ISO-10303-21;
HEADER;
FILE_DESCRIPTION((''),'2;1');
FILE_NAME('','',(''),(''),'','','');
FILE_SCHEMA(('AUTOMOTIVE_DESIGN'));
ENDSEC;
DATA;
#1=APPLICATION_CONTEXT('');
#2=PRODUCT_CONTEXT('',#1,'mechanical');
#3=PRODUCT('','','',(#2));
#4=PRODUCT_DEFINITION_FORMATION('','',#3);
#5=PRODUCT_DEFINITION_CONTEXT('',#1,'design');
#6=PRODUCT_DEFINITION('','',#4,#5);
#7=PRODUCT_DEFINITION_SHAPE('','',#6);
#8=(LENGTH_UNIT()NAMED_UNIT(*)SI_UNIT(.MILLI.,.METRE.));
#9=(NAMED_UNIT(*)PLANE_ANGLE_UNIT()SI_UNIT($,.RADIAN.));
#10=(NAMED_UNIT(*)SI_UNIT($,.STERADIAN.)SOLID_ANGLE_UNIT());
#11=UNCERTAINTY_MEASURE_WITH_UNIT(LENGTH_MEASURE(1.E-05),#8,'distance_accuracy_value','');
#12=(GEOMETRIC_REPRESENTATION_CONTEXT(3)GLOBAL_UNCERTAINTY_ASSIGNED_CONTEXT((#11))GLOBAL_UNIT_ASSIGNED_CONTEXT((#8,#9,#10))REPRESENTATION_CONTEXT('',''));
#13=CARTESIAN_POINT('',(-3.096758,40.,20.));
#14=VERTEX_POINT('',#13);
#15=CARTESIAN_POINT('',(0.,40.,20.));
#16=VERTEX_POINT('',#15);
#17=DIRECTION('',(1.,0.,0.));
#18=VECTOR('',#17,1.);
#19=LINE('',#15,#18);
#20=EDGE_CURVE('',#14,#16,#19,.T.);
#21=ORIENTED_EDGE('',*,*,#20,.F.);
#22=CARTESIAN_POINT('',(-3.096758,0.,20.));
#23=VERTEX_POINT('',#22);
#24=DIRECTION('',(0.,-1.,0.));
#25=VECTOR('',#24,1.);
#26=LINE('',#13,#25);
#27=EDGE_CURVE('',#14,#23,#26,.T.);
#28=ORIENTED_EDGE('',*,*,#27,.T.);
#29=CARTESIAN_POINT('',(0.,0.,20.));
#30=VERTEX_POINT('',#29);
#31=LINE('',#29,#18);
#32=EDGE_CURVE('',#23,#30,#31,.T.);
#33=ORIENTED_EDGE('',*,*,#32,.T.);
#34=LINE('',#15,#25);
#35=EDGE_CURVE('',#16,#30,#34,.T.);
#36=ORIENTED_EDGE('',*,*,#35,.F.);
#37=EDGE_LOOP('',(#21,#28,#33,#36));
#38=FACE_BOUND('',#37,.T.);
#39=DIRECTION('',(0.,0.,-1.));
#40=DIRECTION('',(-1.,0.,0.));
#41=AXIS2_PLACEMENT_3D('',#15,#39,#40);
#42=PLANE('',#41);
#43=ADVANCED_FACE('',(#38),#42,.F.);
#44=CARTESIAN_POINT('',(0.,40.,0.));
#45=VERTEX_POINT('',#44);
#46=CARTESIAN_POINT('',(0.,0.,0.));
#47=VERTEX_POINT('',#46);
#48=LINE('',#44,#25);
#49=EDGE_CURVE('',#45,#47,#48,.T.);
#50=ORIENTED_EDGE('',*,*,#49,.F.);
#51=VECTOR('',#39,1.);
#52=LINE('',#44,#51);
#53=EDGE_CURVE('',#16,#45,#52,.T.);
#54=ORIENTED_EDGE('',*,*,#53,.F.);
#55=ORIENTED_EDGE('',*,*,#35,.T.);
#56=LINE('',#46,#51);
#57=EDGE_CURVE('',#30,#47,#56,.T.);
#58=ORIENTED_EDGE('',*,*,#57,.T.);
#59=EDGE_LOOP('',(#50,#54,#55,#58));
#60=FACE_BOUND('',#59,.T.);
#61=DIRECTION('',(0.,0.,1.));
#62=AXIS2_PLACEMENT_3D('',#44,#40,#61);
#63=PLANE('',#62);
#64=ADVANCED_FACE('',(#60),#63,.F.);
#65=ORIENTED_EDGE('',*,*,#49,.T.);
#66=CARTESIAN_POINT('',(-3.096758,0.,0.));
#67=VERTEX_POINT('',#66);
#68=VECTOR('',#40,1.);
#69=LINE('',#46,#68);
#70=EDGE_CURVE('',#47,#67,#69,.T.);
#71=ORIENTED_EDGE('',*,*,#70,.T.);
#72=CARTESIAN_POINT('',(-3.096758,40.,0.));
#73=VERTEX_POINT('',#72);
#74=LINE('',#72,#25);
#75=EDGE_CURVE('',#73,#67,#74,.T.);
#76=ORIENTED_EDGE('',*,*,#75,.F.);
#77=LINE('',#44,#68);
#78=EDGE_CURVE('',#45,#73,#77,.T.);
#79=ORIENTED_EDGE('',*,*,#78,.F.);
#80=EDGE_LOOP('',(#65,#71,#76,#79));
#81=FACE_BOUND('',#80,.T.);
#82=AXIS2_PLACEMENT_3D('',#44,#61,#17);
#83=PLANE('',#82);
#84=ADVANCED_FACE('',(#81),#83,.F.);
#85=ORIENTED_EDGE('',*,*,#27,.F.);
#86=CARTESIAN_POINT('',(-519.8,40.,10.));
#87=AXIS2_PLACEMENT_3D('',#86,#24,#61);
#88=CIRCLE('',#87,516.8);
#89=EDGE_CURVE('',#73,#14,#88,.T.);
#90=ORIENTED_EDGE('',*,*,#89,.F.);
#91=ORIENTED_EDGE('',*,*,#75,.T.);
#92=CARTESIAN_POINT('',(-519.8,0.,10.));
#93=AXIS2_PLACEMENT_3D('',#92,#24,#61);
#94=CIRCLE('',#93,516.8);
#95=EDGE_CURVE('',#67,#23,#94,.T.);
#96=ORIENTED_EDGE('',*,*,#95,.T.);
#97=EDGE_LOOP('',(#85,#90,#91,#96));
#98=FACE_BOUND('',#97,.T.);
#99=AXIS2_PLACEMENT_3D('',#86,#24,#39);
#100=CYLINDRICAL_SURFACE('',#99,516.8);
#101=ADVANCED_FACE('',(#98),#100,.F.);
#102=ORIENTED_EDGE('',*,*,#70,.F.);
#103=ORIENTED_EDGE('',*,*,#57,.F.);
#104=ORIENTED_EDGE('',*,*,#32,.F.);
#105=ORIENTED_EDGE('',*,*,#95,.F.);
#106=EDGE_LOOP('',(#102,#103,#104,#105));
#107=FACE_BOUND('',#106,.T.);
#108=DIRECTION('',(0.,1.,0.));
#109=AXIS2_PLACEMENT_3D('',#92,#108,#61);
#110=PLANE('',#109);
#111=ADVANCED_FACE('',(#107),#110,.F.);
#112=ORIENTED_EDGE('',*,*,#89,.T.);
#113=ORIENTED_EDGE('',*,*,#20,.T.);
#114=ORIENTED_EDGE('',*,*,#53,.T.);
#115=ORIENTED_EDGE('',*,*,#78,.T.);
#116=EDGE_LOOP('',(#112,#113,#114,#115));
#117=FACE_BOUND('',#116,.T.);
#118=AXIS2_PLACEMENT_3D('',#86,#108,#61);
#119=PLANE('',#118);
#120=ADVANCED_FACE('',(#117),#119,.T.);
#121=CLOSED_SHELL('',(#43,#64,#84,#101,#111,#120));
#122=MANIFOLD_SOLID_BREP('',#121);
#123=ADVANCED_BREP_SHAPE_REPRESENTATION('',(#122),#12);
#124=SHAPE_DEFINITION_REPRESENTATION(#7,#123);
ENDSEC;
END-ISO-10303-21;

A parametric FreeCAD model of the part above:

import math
import FreeCAD as App
import Part
import Sketcher
Q = App.Units.Quantity

doc = App.newDocument("Part")
body = doc.addObject("PartDesign::Body", "Body")

# Sketch on XZ plane
sketch1 = body.newObject("Sketcher::SketchObject", "Sketch")
sketch1.AttachmentSupport = (doc.getObject("XZ_Plane"), [""])
sketch1.MapMode = "FlatFace"
sketch1.addGeometry([
    Part.LineSegment(App.Vector(0, 20, 0), App.Vector(0, 0, 0)),
    Part.LineSegment(App.Vector(0, 0, 0), App.Vector(-3.1, 0, 0)),
    Part.ArcOfCircle(Part.Circle(App.Vector(-519.8, 10, 0), App.Vector(0, 0, 1), 516.8), math.radians(-1.11), math.radians(1.11)),
    Part.LineSegment(App.Vector(-3.1, 20, 0), App.Vector(0, 20, 0)),
], False)
sketch1.addConstraint([
    Sketcher.Constraint("Coincident", 0, 2, 1, 1),
    Sketcher.Constraint("Coincident", 1, 2, 2, 1),
    Sketcher.Constraint("Coincident", 2, 2, 3, 1),
    Sketcher.Constraint("Coincident", 3, 2, 0, 1),
    Sketcher.Constraint("Vertical", 0),
    Sketcher.Constraint("Horizontal", 1),
    Sketcher.Constraint("Horizontal", 3),
    Sketcher.Constraint("Coincident", 0, 2, -1, 1),
    Sketcher.Constraint("Vertical", 1, 2, 2, 2),
    Sketcher.Constraint("Radius", 2, Q("516.799999 mm")),
    Sketcher.Constraint("DistanceY", 0, 2, 0, 1, Q("20 mm")),
    Sketcher.Constraint("DistanceX", 2, 3, -1, 1, Q("519.799999 mm")),
])
pad1 = body.newObject("PartDesign::Pad", "Pad")
pad1.Profile = sketch1
pad1.Length = 40
pad1.Reversed = True

doc.recompute()
